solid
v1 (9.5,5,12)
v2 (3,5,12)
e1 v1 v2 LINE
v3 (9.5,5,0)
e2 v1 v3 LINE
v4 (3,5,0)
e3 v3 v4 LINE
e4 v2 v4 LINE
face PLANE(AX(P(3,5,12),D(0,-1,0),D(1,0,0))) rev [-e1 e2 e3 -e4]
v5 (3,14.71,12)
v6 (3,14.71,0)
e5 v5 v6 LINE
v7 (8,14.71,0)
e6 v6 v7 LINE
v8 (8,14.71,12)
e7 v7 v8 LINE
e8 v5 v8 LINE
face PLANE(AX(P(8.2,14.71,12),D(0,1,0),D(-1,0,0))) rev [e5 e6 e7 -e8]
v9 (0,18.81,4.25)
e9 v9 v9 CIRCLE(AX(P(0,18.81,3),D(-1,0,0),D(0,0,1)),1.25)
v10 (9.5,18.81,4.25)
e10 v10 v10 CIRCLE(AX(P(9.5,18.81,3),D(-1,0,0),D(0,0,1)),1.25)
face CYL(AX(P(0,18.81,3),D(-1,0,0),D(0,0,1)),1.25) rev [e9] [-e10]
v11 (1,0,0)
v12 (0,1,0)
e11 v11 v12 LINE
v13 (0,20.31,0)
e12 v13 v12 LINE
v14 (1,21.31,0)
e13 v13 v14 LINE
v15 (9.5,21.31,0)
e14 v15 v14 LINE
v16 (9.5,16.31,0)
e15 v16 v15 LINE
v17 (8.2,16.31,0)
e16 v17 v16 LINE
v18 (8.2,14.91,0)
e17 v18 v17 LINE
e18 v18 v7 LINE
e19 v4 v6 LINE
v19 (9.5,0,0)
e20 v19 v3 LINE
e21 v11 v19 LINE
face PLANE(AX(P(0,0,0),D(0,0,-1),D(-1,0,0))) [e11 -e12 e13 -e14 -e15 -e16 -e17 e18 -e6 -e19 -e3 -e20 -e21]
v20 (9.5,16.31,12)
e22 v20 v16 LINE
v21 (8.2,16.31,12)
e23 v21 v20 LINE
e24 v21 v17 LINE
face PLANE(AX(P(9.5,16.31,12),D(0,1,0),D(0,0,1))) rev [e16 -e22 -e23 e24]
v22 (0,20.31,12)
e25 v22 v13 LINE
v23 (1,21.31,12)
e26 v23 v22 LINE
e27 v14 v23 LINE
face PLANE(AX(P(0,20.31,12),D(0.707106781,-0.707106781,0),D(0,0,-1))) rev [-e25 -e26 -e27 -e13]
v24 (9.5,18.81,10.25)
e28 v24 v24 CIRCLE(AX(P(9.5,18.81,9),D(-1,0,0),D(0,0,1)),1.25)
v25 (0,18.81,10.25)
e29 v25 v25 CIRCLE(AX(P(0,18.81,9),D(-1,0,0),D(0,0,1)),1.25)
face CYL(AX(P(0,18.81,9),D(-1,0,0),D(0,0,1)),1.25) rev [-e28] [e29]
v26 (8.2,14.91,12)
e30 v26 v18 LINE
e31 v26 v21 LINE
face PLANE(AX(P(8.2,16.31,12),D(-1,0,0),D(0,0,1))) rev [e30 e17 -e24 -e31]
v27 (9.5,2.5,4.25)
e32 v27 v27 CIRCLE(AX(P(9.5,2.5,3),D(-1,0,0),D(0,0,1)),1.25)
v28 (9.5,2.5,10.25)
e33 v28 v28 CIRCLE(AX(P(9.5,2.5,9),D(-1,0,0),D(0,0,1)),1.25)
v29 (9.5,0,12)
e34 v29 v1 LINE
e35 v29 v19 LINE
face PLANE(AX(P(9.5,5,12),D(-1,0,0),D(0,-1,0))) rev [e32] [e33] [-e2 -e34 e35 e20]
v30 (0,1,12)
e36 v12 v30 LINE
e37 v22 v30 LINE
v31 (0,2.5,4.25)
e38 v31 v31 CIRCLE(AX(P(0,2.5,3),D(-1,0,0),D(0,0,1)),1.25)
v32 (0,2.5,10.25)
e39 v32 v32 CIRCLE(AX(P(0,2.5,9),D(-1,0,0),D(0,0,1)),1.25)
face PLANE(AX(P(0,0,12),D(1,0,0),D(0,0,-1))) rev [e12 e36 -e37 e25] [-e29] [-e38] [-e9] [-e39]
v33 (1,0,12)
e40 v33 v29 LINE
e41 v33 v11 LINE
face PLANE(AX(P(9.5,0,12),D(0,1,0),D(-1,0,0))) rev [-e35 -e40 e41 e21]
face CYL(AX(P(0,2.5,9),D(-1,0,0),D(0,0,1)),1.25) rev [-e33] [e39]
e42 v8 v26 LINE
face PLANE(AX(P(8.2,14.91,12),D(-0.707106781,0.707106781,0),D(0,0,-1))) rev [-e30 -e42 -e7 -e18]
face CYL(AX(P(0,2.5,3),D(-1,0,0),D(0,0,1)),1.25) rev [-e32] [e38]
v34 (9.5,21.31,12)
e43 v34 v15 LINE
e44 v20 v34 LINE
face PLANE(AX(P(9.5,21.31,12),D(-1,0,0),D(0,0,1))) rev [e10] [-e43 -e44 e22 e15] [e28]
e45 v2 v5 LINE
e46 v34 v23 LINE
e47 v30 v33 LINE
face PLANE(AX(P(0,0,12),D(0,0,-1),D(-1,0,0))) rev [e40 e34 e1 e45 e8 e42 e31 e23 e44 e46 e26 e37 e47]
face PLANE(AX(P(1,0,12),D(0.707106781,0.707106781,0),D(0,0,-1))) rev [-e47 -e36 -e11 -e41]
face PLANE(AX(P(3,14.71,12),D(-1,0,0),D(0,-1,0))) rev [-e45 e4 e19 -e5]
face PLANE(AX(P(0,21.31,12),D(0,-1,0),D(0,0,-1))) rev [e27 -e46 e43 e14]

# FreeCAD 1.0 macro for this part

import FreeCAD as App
import Part
import Sketcher

V = App.Vector
Q = App.Units.Quantity


def edges_at(feature, points):
    """Names of the edges that pass closest to the given points."""
    edges = feature.Shape.Edges
    near = lambda p: min(range(len(edges)), key=lambda i: edges[i].distToShape(Part.Vertex(*p))[0])
    return sorted({f"Edge{near(p) + 1}" for p in points})

doc = App.newDocument("Part")
body = doc.addObject("PartDesign::Body", "Body")

# Sketch on XY plane
sketch1 = body.newObject("Sketcher::SketchObject", "Sketch")
sketch1.AttachmentSupport = (doc.getObject("XY_Plane"), [""])
sketch1.MapMode = "FlatFace"
sketch1.addGeometry(Part.LineSegment(V(0, 21.3, 0), V(0, 0, 0)), False)
sketch1.addGeometry(Part.LineSegment(V(0, 0, 0), V(9.5, 0, 0)), False)
sketch1.addGeometry(Part.LineSegment(V(9.5, 0, 0), V(9.5, 5, 0)), False)
sketch1.addGeometry(Part.LineSegment(V(9.5, 5, 0), V(3, 5, 0)), False)
sketch1.addGeometry(Part.LineSegment(V(3, 5, 0), V(3, 14.7, 0)), False)
sketch1.addGeometry(Part.LineSegment(V(3, 14.7, 0), V(8.2, 14.7, 0)), False)
sketch1.addGeometry(Part.LineSegment(V(8.2, 14.7, 0), V(8.2, 16.3, 0)), False)
sketch1.addGeometry(Part.LineSegment(V(8.2, 16.3, 0), V(9.5, 16.3, 0)), False)
sketch1.addGeometry(Part.LineSegment(V(9.5, 16.3, 0), V(9.5, 21.3, 0)), False)
sketch1.addGeometry(Part.LineSegment(V(9.5, 21.3, 0), V(0, 21.3, 0)), False)
sketch1.addConstraint(Sketcher.Constraint("Coincident", 0, 2, 1, 1))
sketch1.addConstraint(Sketcher.Constraint("Coincident", 1, 2, 2, 1))
sketch1.addConstraint(Sketcher.Constraint("Coincident", 2, 2, 3, 1))
sketch1.addConstraint(Sketcher.Constraint("Coincident", 3, 2, 4, 1))
sketch1.addConstraint(Sketcher.Constraint("Coincident", 4, 2, 5, 1))
sketch1.addConstraint(Sketcher.Constraint("Coincident", 5, 2, 6, 1))
sketch1.addConstraint(Sketcher.Constraint("Coincident", 6, 2, 7, 1))
sketch1.addConstraint(Sketcher.Constraint("Coincident", 7, 2, 8, 1))
sketch1.addConstraint(Sketcher.Constraint("Coincident", 8, 2, 9, 1))
sketch1.addConstraint(Sketcher.Constraint("Coincident", 9, 2, 0, 1))
sketch1.addConstraint(Sketcher.Constraint("Vertical", 0))
sketch1.addConstraint(Sketcher.Constraint("Horizontal", 1))
sketch1.addConstraint(Sketcher.Constraint("Vertical", 2))
sketch1.addConstraint(Sketcher.Constraint("Horizontal", 3))
sketch1.addConstraint(Sketcher.Constraint("Vertical", 4))
sketch1.addConstraint(Sketcher.Constraint("Horizontal", 5))
sketch1.addConstraint(Sketcher.Constraint("Vertical", 6))
sketch1.addConstraint(Sketcher.Constraint("Horizontal", 7))
sketch1.addConstraint(Sketcher.Constraint("Vertical", 8))
sketch1.addConstraint(Sketcher.Constraint("Horizontal", 9))
sketch1.addConstraint(Sketcher.Constraint("Coincident", 0, 2, -1, 1))
sketch1.addConstraint(Sketcher.Constraint("Vertical", 2, 2, 7, 2))
sketch1.addConstraint(Sketcher.Constraint("Equal", 2, 8))
sketch1.addConstraint(Sketcher.Constraint("DistanceY", 2, 1, 2, 2, Q("5 mm")))
sketch1.addConstraint(Sketcher.Constraint("DistanceX", 1, 1, 1, 2, Q("9.5 mm")))
sketch1.addConstraint(Sketcher.Constraint("DistanceX", 3, 2, 3, 1, Q("6.5 mm")))
sketch1.addConstraint(Sketcher.Constraint("DistanceX", 5, 1, 5, 2, Q("5.2 mm")))
sketch1.addConstraint(Sketcher.Constraint("DistanceY", 6, 1, 6, 2, Q("1.6 mm")))
sketch1.addConstraint(Sketcher.Constraint("DistanceY", 0, 2, 0, 1, Q("21.31 mm")))
pad1 = body.newObject("PartDesign::Pad", "Pad")
pad1.Profile = sketch1
pad1.Length = 12
doc.recompute()

chamfer = body.newObject("PartDesign::Chamfer", "Chamfer")
chamfer.Base = (pad1, edges_at(pad1, [(8.2, 14.71, 6)]))
chamfer.Size = 0.2

# Sketch on YZ plane
sketch2 = body.newObject("Sketcher::SketchObject", "Sketch001")
sketch2.AttachmentSupport = (doc.getObject("YZ_Plane"), [""])
sketch2.MapMode = "FlatFace"
sketch2.addGeometry(Part.Circle(V(2.5, 3, 0), V(0, 0, 1), 1.2), False)
sketch2.addGeometry(Part.Circle(V(2.5, 9, 0), V(0, 0, 1), 1.2), False)
sketch2.addGeometry(Part.Circle(V(18.8, 9, 0), V(0, 0, 1), 1.2), False)
sketch2.addGeometry(Part.Circle(V(18.8, 3, 0), V(0, 0, 1), 1.2), False)
sketch2.addConstraint(Sketcher.Constraint("Equal", 0, 1))
sketch2.addConstraint(Sketcher.Constraint("Equal", 1, 2))
sketch2.addConstraint(Sketcher.Constraint("Equal", 2, 3))
sketch2.addConstraint(Sketcher.Constraint("Horizontal", 1, 3, 2, 3))
sketch2.addConstraint(Sketcher.Constraint("Horizontal", 0, 3, 3, 3))
sketch2.addConstraint(Sketcher.Constraint("Vertical", 0, 3, 1, 3))
sketch2.addConstraint(Sketcher.Constraint("Vertical", 2, 3, 3, 3))
sketch2.addConstraint(Sketcher.Constraint("Diameter", 0, Q("2.5 mm")))
sketch2.addConstraint(Sketcher.Constraint("DistanceY", -1, 1, 0, 3, Q("3 mm")))
sketch2.addConstraint(Sketcher.Constraint("DistanceY", -1, 1, 1, 3, Q("9 mm")))
sketch2.addConstraint(Sketcher.Constraint("DistanceX", -1, 1, 0, 3, Q("2.5 mm")))
sketch2.addConstraint(Sketcher.Constraint("DistanceX", -1, 1, 2, 3, Q("18.81 mm")))
doc.recompute()
hole = body.newObject("PartDesign::Hole", "Hole")
hole.Profile = sketch2
hole.ThreadType = "None"
hole.Diameter = 2.5
hole.DepthType = "ThroughAll"
hole.Reversed = True
doc.recompute()

chamfer2 = body.newObject("PartDesign::Chamfer", "Chamfer001")
chamfer2.Base = (hole, edges_at(hole, [(0, 0, 6), (0, 21.31, 6)]))
chamfer2.Size = 1

doc.recompute()
